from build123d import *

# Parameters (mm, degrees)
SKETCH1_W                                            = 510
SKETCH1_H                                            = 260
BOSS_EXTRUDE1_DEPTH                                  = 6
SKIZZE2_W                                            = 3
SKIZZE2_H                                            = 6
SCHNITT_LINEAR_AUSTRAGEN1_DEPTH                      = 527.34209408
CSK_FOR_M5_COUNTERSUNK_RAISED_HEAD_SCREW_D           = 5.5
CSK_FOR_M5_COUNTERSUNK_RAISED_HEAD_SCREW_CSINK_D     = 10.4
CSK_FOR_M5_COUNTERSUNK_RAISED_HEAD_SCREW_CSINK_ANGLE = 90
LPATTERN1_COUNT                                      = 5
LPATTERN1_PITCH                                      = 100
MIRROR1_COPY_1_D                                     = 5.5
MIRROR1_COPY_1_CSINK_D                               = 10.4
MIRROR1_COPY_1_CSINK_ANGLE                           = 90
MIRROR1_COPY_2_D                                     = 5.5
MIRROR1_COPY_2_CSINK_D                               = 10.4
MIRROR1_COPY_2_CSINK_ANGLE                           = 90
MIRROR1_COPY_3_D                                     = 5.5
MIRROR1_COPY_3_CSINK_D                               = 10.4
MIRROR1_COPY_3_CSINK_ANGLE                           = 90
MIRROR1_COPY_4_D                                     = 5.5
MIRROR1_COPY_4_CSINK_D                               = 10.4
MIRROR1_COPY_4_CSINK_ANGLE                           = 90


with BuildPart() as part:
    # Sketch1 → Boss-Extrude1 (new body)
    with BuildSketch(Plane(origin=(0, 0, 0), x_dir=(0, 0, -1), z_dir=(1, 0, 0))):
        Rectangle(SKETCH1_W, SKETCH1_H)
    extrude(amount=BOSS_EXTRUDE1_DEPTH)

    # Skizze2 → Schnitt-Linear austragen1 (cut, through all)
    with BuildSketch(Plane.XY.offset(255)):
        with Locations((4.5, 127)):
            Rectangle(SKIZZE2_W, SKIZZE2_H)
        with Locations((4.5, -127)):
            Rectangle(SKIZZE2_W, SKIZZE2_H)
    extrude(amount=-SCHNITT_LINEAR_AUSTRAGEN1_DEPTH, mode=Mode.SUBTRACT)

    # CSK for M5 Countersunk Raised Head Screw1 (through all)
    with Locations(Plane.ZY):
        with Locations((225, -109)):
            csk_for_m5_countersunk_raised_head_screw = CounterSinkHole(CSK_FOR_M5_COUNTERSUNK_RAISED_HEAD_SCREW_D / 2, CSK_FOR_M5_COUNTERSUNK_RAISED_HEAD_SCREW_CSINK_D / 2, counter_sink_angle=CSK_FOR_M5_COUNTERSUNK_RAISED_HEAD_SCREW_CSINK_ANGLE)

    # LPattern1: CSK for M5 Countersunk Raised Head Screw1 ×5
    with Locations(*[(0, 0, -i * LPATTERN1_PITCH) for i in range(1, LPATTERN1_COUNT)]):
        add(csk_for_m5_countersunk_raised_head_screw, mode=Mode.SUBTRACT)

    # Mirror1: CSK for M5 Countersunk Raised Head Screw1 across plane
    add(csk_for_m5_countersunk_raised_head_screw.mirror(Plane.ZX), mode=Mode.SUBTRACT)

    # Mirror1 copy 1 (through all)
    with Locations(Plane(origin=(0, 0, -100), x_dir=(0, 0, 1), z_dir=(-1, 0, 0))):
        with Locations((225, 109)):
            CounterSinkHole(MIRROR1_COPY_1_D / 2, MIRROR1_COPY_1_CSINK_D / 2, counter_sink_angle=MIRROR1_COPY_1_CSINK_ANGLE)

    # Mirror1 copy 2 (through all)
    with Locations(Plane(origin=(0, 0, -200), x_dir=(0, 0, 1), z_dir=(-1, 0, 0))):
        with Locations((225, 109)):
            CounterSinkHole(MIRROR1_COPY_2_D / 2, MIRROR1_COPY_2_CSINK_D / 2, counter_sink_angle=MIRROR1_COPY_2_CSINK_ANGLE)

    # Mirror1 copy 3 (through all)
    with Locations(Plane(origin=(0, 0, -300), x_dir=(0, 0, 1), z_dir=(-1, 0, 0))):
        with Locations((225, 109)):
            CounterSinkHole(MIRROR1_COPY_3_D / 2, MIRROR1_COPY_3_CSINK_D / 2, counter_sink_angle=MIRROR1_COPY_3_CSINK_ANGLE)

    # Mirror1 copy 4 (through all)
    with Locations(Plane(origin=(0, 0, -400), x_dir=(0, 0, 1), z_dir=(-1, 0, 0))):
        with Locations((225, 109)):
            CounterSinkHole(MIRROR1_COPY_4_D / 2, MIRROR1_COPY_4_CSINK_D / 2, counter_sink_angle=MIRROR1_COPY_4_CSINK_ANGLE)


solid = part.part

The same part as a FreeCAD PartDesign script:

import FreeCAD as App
import Part
import Sketcher
from FreeCAD import Vector


def add_polygon(sketch, points):
    """Adds a closed chain of lines whose ends are joined by coincident constraints."""
    first, n = sketch.GeometryCount, len(points)
    for a, b in zip(points, points[1:] + points[:1]):
        sketch.addGeometry(Part.LineSegment(App.Vector(*a, 0), App.Vector(*b, 0)), False)
    for i in range(n):
        sketch.addConstraint(Sketcher.Constraint("Coincident", first + i, 2, first + (i + 1) % n, 1))

doc = App.newDocument("Part")
body = doc.addObject("PartDesign::Body", "Body")

# Sketch on YZ plane
sketch1 = body.newObject("Sketcher::SketchObject", "Sketch")
sketch1.AttachmentSupport = (doc.getObject("YZ_Plane"), [""])
sketch1.MapMode = "FlatFace"
add_polygon(sketch1, [(130, 255), (-130, 255), (-130, -255), (130, -255)])  # lines 0-3
sketch1.addConstraint([
    Sketcher.Constraint("Horizontal", 0),
    Sketcher.Constraint("Vertical", 1),
    Sketcher.Constraint("Horizontal", 2),
    Sketcher.Constraint("Vertical", 3),
    Sketcher.Constraint("Symmetric", 0, 2, 2, 2, -1, 1),
    Sketcher.Constraint("DistanceX", 0, 2, 0, 1, 260.0),
    Sketcher.Constraint("DistanceY", 1, 2, 1, 1, 510.0),
])
pad1 = body.newObject("PartDesign::Pad", "Pad")
pad1.Profile = sketch1
pad1.Length = 6

# Sketch on XY plane
sketch2 = body.newObject("Sketcher::SketchObject", "Sketch001")
sketch2.AttachmentSupport = (doc.getObject("XY_Plane"), [""])
sketch2.MapMode = "FlatFace"
sketch2.AttachmentOffset = App.Placement(Vector(0, 0, 255), App.Rotation())
add_polygon(sketch2, [(3, 130), (3, 124), (6, 124), (6, 130)])  # lines 0-3
add_polygon(sketch2, [(3, -124), (3, -130), (6, -130), (6, -124)])  # lines 4-7
sketch2.addConstraint([
    Sketcher.Constraint("Vertical", 0),
    Sketcher.Constraint("Horizontal", 1),
    Sketcher.Constraint("Vertical", 2),
    Sketcher.Constraint("Horizontal", 3),
    Sketcher.Constraint("Vertical", 4),
    Sketcher.Constraint("Horizontal", 5),
    Sketcher.Constraint("Vertical", 6),
    Sketcher.Constraint("Horizontal", 7),
    Sketcher.Constraint("Symmetric", 3, 2, 4, 2, -1),
    Sketcher.Constraint("Symmetric", 1, 2, 6, 2, -1),
    Sketcher.Constraint("DistanceX", 1, 1, 1, 2, 3.0),
    Sketcher.Constraint("DistanceY", 0, 2, 0, 1, 6.0),
    Sketcher.Constraint("DistanceX", -1, 1, 0, 2, 3.0),
    Sketcher.Constraint("DistanceY", -1, 1, 0, 2, 124.0),
])
pocket1 = body.newObject("PartDesign::Pocket", "Pocket")
pocket1.Profile = sketch2
pocket1.Type = "ThroughAll"

# Sketch on YZ plane
sketch3 = body.newObject("Sketcher::SketchObject", "Sketch002")
sketch3.AttachmentSupport = (doc.getObject("YZ_Plane"), [""])
sketch3.MapMode = "FlatFace"
sketch3.addGeometry(Part.Circle(Vector(-109, 225, 0), Vector(0, 0, 1), 2.75), False)
sketch3.addConstraint([
    Sketcher.Constraint("Diameter", 0, 5.5),
    Sketcher.Constraint("DistanceX", 0, 3, -1, 1, 109.0),
    Sketcher.Constraint("DistanceY", -1, 1, 0, 3, 225.0),
])
doc.recompute()
hole = body.newObject("PartDesign::Hole", "Hole")
hole.Profile = sketch3
hole.ThreadType = "None"
hole.Diameter = 5.5
hole.DepthType = "ThroughAll"
hole.HoleCutType = "Countersink"
hole.HoleCutDiameter = 10.4
hole.HoleCutCountersinkAngle = 90
hole.Reversed = True
doc.recompute()

linearpattern = body.newObject("PartDesign::LinearPattern", "LinearPattern")
linearpattern.Originals = [hole]
linearpattern.Direction = (doc.getObject("Z_Axis"), [""])
linearpattern.Mode = "offset"
linearpattern.Offset = 100
linearpattern.Occurrences = 5
linearpattern.Reversed = True
body.Tip = linearpattern
doc.recompute()

mirrored = body.newObject("PartDesign::Mirrored", "Mirrored")
mirrored.Originals = [hole]
mirrored.MirrorPlane = (doc.getObject("XZ_Plane"), [""])
body.Tip = mirrored

# Sketch on YZ plane
sketch4 = body.newObject("Sketcher::SketchObject", "Sketch003")
sketch4.AttachmentSupport = (doc.getObject("YZ_Plane"), [""])
sketch4.MapMode = "FlatFace"
sketch4.addGeometry(Part.Circle(Vector(109, 125, 0), Vector(0, 0, 1), 2.75), False)
sketch4.addConstraint([
    Sketcher.Constraint("Diameter", 0, 5.5),
    Sketcher.Constraint("DistanceX", -1, 1, 0, 3, 109.0),
    Sketcher.Constraint("DistanceY", -1, 1, 0, 3, 125.0),
])
doc.recompute()
hole2 = body.newObject("PartDesign::Hole", "Hole001")
hole2.Profile = sketch4
hole2.ThreadType = "None"
hole2.Diameter = 5.5
hole2.DepthType = "ThroughAll"
hole2.HoleCutType = "Countersink"
hole2.HoleCutDiameter = 10.4
hole2.HoleCutCountersinkAngle = 90
hole2.Reversed = True

# Sketch on YZ plane
sketch5 = body.newObject("Sketcher::SketchObject", "Sketch004")
sketch5.AttachmentSupport = (doc.getObject("YZ_Plane"), [""])
sketch5.MapMode = "FlatFace"
sketch5.addGeometry(Part.Circle(Vector(109, 25, 0), Vector(0, 0, 1), 2.75), False)
sketch5.addConstraint([
    Sketcher.Constraint("Diameter", 0, 5.5),
    Sketcher.Constraint("DistanceX", -1, 1, 0, 3, 109.0),
    Sketcher.Constraint("DistanceY", -1, 1, 0, 3, 25.0),
])
doc.recompute()
hole3 = body.newObject("PartDesign::Hole", "Hole002")
hole3.Profile = sketch5
hole3.ThreadType = "None"
hole3.Diameter = 5.5
hole3.DepthType = "ThroughAll"
hole3.HoleCutType = "Countersink"
hole3.HoleCutDiameter = 10.4
hole3.HoleCutCountersinkAngle = 90
hole3.Reversed = True

# Sketch on YZ plane
sketch6 = body.newObject("Sketcher::SketchObject", "Sketch005")
sketch6.AttachmentSupport = (doc.getObject("YZ_Plane"), [""])
sketch6.MapMode = "FlatFace"
sketch6.addGeometry(Part.Circle(Vector(109, -75, 0), Vector(0, 0, 1), 2.75), False)
sketch6.addConstraint([
    Sketcher.Constraint("Diameter", 0, 5.5),
    Sketcher.Constraint("DistanceX", -1, 1, 0, 3, 109.0),
    Sketcher.Constraint("DistanceY", 0, 3, -1, 1, 75.0),
])
doc.recompute()
hole4 = body.newObject("PartDesign::Hole", "Hole003")
hole4.Profile = sketch6
hole4.ThreadType = "None"
hole4.Diameter = 5.5
hole4.DepthType = "ThroughAll"
hole4.HoleCutType = "Countersink"
hole4.HoleCutDiameter = 10.4
hole4.HoleCutCountersinkAngle = 90
hole4.Reversed = True

# Sketch on YZ plane
sketch7 = body.newObject("Sketcher::SketchObject", "Sketch006")
sketch7.AttachmentSupport = (doc.getObject("YZ_Plane"), [""])
sketch7.MapMode = "FlatFace"
sketch7.addGeometry(Part.Circle(Vector(109, -175, 0), Vector(0, 0, 1), 2.75), False)
sketch7.addConstraint([
    Sketcher.Constraint("Diameter", 0, 5.5),
    Sketcher.Constraint("DistanceX", -1, 1, 0, 3, 109.0),
    Sketcher.Constraint("DistanceY", 0, 3, -1, 1, 175.0),
])
doc.recompute()
hole5 = body.newObject("PartDesign::Hole", "Hole004")
hole5.Profile = sketch7
hole5.ThreadType = "None"
hole5.Diameter = 5.5
hole5.DepthType = "ThroughAll"
hole5.HoleCutType = "Countersink"
hole5.HoleCutDiameter = 10.4
hole5.HoleCutCountersinkAngle = 90
hole5.Reversed = True

doc.recompute()
